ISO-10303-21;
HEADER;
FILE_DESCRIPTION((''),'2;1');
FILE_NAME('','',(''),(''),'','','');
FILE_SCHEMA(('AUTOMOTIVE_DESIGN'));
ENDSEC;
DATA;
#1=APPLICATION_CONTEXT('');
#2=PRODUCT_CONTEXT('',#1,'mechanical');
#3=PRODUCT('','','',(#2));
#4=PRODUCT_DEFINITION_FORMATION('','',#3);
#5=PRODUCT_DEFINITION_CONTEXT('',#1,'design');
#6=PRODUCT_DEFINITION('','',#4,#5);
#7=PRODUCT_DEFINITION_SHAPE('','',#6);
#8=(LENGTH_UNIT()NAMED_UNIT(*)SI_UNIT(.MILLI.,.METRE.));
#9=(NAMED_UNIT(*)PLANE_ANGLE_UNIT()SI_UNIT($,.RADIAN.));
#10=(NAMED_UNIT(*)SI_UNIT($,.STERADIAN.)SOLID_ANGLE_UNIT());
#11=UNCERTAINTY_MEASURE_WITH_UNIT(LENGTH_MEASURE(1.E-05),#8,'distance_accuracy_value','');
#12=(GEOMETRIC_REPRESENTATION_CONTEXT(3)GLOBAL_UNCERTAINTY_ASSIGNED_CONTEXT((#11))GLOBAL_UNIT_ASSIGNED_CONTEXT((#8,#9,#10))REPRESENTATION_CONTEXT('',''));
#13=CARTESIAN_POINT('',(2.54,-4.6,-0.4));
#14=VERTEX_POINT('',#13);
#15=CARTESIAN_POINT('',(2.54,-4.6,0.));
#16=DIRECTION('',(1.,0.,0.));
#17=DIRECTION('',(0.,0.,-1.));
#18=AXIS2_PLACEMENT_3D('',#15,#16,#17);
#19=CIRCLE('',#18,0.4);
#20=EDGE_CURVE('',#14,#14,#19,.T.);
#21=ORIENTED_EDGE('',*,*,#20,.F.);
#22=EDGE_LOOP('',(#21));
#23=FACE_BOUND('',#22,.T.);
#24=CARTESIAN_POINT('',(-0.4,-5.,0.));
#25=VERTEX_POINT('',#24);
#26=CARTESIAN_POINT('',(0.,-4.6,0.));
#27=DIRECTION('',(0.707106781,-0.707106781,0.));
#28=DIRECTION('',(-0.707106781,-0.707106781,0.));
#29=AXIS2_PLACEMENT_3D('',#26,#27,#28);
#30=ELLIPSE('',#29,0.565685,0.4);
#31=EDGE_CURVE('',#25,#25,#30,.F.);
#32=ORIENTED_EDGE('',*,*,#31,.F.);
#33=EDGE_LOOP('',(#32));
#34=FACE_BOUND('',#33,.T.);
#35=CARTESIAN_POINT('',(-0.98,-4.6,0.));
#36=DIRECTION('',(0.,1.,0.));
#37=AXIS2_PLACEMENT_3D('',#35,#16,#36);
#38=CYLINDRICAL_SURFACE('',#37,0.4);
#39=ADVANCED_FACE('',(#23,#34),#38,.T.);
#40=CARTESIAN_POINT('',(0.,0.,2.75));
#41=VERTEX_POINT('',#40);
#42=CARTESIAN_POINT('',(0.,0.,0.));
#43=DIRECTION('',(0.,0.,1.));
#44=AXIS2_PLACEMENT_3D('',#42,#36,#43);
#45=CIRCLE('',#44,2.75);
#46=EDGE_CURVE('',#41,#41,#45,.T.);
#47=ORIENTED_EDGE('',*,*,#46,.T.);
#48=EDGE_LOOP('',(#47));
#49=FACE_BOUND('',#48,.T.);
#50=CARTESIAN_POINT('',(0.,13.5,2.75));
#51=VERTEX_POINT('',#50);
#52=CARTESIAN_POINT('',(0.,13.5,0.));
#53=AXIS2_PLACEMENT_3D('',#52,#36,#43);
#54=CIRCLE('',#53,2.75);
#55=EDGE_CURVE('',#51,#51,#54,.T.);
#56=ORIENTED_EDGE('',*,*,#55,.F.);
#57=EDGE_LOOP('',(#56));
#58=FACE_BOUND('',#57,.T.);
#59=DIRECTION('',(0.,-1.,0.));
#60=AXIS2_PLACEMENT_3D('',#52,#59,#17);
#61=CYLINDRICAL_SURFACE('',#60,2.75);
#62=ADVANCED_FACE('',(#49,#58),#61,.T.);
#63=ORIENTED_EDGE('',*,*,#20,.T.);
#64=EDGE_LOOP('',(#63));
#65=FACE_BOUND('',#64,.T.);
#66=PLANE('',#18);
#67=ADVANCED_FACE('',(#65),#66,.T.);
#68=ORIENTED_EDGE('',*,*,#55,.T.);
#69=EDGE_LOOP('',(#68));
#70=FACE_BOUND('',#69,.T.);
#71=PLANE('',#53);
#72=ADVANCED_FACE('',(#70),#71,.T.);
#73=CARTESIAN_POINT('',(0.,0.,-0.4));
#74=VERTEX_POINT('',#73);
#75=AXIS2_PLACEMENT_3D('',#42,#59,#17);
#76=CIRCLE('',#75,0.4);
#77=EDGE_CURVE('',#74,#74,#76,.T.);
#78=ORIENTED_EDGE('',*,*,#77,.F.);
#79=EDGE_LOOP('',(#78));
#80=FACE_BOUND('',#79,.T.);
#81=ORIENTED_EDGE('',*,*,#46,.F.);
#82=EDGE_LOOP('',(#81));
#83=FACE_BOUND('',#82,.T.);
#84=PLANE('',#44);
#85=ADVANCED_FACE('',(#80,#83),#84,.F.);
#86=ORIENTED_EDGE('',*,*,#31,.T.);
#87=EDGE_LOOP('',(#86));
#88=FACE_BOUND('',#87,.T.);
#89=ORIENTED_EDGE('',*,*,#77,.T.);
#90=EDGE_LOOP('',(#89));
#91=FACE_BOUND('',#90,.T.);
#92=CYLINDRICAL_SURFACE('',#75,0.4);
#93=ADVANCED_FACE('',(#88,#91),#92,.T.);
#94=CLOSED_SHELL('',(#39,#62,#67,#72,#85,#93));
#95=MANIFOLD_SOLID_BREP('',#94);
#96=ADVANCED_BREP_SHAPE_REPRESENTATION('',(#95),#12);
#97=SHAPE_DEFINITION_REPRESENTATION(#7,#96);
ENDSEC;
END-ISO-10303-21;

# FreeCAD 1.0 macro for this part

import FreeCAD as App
import Part
import Sketcher

V = App.Vector
Q = App.Units.Quantity

doc = App.newDocument("Part")
body = doc.addObject("PartDesign::Body", "Body")

sketch1 = body.newObject("Sketcher::SketchObject", "Sketch")
sketch1.AttachmentSupport = (doc.getObject("XZ_Plane"), [""])
sketch1.MapMode = "FlatFace"
sketch1.addGeometry(Part.Circle(V(0, 0, 0), V(0, 0, 1), 2.8), False)
sketch1.addConstraint([
    Sketcher.Constraint("Coincident", 0, 3, -1, 1),
    Sketcher.Constraint("Diameter", 0, Q("5.5 mm")),
])
pad1 = body.newObject("PartDesign::Pad", "Pad")
pad1.Profile = sketch1
pad1.Length = 13.5
pad1.Reversed = True

sketch2 = body.newObject("Sketcher::SketchObject", "Sketch001")
sketch2.AttachmentSupport = (doc.getObject("XZ_Plane"), [""])
sketch2.MapMode = "FlatFace"
sketch2.addGeometry(Part.Circle(V(0, 0, 0), V(0, 0, 1), 0.4), False)
sketch2.addConstraint([
    Sketcher.Constraint("Coincident", 0, 3, -1, 1),
    Sketcher.Constraint("Diameter", 0, Q("0.8 mm")),
])

sketch3 = body.newObject("Sketcher::SketchObject", "Sketch002")
sketch3.AttachmentSupport = (doc.getObject("XY_Plane"), [""])
sketch3.MapMode = "FlatFace"
sketch3.addGeometry([
    Part.LineSegment(V(0, 0, 0), V(0, -4.6, 0)),
    Part.LineSegment(V(0, -4.6, 0), V(2.5, -4.6, 0)),
], False)
sketch3.addConstraint([
    Sketcher.Constraint("Coincident", 0, 2, 1, 1),
    Sketcher.Constraint("Vertical", 0),
    Sketcher.Constraint("Horizontal", 1),
    Sketcher.Constraint("Coincident", 0, 1, -1, 1),
    Sketcher.Constraint("DistanceY", 0, 2, 0, 1, Q("4.6 mm")),
    Sketcher.Constraint("DistanceX", 1, 1, 1, 2, Q("2.54 mm")),
])
doc.recompute()

additivepipe = body.newObject("PartDesign::AdditivePipe", "AdditivePipe")
additivepipe.Profile = sketch2
additivepipe.Spine = (sketch3, ["Edge1", "Edge2"])
additivepipe.Transition = "Right corner"

doc.recompute()
